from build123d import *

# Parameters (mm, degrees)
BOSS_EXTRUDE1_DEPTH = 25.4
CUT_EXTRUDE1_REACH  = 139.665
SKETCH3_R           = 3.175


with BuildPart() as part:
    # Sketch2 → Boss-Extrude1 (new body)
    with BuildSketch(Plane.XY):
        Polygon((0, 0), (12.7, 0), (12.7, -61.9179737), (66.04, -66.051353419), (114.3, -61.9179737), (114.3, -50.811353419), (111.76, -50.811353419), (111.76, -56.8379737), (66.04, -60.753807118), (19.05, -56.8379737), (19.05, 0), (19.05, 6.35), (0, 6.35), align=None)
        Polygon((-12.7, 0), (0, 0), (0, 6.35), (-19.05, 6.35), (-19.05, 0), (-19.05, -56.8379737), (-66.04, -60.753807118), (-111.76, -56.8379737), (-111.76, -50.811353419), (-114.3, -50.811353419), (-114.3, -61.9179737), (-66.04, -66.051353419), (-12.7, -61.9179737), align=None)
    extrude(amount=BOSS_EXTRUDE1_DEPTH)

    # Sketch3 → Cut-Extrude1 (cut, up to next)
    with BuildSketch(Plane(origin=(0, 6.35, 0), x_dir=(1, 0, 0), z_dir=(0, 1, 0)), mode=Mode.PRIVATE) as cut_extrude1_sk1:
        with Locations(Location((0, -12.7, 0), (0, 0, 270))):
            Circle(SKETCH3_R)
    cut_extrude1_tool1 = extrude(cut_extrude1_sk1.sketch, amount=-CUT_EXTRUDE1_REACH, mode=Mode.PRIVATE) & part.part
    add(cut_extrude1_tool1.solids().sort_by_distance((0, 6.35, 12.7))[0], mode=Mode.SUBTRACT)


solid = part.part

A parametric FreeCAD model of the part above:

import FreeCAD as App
import Part
import Sketcher
from FreeCAD import Vector
Q = App.Units.Quantity

doc = App.newDocument("Part")
body = doc.addObject("PartDesign::Body", "Body")

sketch1 = body.newObject("Sketcher::SketchObject", "Sketch")
sketch1.AttachmentSupport = (doc.getObject("XY_Plane"), [""])
sketch1.MapMode = "FlatFace"
sketch1.addGeometry(Part.LineSegment(Vector(12.7, 0, 0), Vector(12.7, -61.917974, 0)), False)
sketch1.addGeometry(Part.LineSegment(Vector(12.7, -61.917974, 0), Vector(66.04, -66.051353, 0)), False)
sketch1.addGeometry(Part.LineSegment(Vector(66.04, -66.051353, 0), Vector(114.3, -61.917974, 0)), False)
sketch1.addGeometry(Part.LineSegment(Vector(114.3, -61.917974, 0), Vector(114.3, -50.811353, 0)), False)
sketch1.addGeometry(Part.LineSegment(Vector(114.3, -50.811353, 0), Vector(111.76, -50.811353, 0)), False)
sketch1.addGeometry(Part.LineSegment(Vector(111.76, -50.811353, 0), Vector(111.76, -56.837974, 0)), False)
sketch1.addGeometry(Part.LineSegment(Vector(111.76, -56.837974, 0), Vector(66.04, -60.753807, 0)), False)
sketch1.addGeometry(Part.LineSegment(Vector(66.04, -60.753807, 0), Vector(19.05, -56.837974, 0)), False)
sketch1.addGeometry(Part.LineSegment(Vector(19.05, -56.837974, 0), Vector(19.05, 6.35, 0)), False)
sketch1.addGeometry(Part.LineSegment(Vector(19.05, 6.35, 0), Vector(-19.05, 6.35, 0)), False)
sketch1.addGeometry(Part.LineSegment(Vector(-19.05, 6.35, 0), Vector(-19.05, -56.837974, 0)), False)
sketch1.addGeometry(Part.LineSegment(Vector(-19.05, -56.837974, 0), Vector(-66.04, -60.753807, 0)), False)
sketch1.addGeometry(Part.LineSegment(Vector(-66.04, -60.753807, 0), Vector(-111.76, -56.837974, 0)), False)
sketch1.addGeometry(Part.LineSegment(Vector(-111.76, -56.837974, 0), Vector(-111.76, -50.811353, 0)), False)
sketch1.addGeometry(Part.LineSegment(Vector(-111.76, -50.811353, 0), Vector(-114.3, -50.811353, 0)), False)
sketch1.addGeometry(Part.LineSegment(Vector(-114.3, -50.811353, 0), Vector(-114.3, -61.917974, 0)), False)
sketch1.addGeometry(Part.LineSegment(Vector(-114.3, -61.917974, 0), Vector(-66.04, -66.051353, 0)), False)
sketch1.addGeometry(Part.LineSegment(Vector(-66.04, -66.051353, 0), Vector(-12.7, -61.917974, 0)), False)
sketch1.addGeometry(Part.LineSegment(Vector(-12.7, -61.917974, 0), Vector(-12.7, 0, 0)), False)
sketch1.addGeometry(Part.LineSegment(Vector(-12.7, 0, 0), Vector(12.7, 0, 0)), False)
sketch1.addConstraint(Sketcher.Constraint("Coincident", 0, 2, 1, 1))
sketch1.addConstraint(Sketcher.Constraint("Coincident", 1, 2, 2, 1))
sketch1.addConstraint(Sketcher.Constraint("Coincident", 2, 2, 3, 1))
sketch1.addConstraint(Sketcher.Constraint("Coincident", 3, 2, 4, 1))
sketch1.addConstraint(Sketcher.Constraint("Coincident", 4, 2, 5, 1))
sketch1.addConstraint(Sketcher.Constraint("Coincident", 5, 2, 6, 1))
sketch1.addConstraint(Sketcher.Constraint("Coincident", 6, 2, 7, 1))
sketch1.addConstraint(Sketcher.Constraint("Coincident", 7, 2, 8, 1))
sketch1.addConstraint(Sketcher.Constraint("Coincident", 8, 2, 9, 1))
sketch1.addConstraint(Sketcher.Constraint("Coincident", 9, 2, 10, 1))
sketch1.addConstraint(Sketcher.Constraint("Coincident", 10, 2, 11, 1))
sketch1.addConstraint(Sketcher.Constraint("Coincident", 11, 2, 12, 1))
sketch1.addConstraint(Sketcher.Constraint("Coincident", 12, 2, 13, 1))
sketch1.addConstraint(Sketcher.Constraint("Coincident", 13, 2, 14, 1))
sketch1.addConstraint(Sketcher.Constraint("Coincident", 14, 2, 15, 1))
sketch1.addConstraint(Sketcher.Constraint("Coincident", 15, 2, 16, 1))
sketch1.addConstraint(Sketcher.Constraint("Coincident", 16, 2, 17, 1))
sketch1.addConstraint(Sketcher.Constraint("Coincident", 17, 2, 18, 1))
sketch1.addConstraint(Sketcher.Constraint("Coincident", 18, 2, 19, 1))
sketch1.addConstraint(Sketcher.Constraint("Coincident", 19, 2, 0, 1))
sketch1.addConstraint(Sketcher.Constraint("Vertical", 0))
sketch1.addConstraint(Sketcher.Constraint("Vertical", 3))
sketch1.addConstraint(Sketcher.Constraint("Horizontal", 4))
sketch1.addConstraint(Sketcher.Constraint("Vertical", 5))
sketch1.addConstraint(Sketcher.Constraint("Vertical", 8))
sketch1.addConstraint(Sketcher.Constraint("Horizontal", 9))
sketch1.addConstraint(Sketcher.Constraint("Vertical", 10))
sketch1.addConstraint(Sketcher.Constraint("Vertical", 13))
sketch1.addConstraint(Sketcher.Constraint("Horizontal", 14))
sketch1.addConstraint(Sketcher.Constraint("Vertical", 15))
sketch1.addConstraint(Sketcher.Constraint("Vertical", 18))
sketch1.addConstraint(Sketcher.Constraint("Horizontal", 19))
sketch1.addConstraint(Sketcher.Constraint("Symmetric", 18, 2, 19, 2, -1, 1))
sketch1.addConstraint(Sketcher.Constraint("Symmetric", 7, 2, 10, 2, -2))
sketch1.addConstraint(Sketcher.Constraint("Symmetric", 6, 2, 11, 2, -2))
sketch1.addConstraint(Sketcher.Constraint("Symmetric", 5, 2, 12, 2, -2))
sketch1.addConstraint(Sketcher.Constraint("Symmetric", 3, 2, 14, 2, -2))
sketch1.addConstraint(Sketcher.Constraint("Symmetric", 1, 2, 16, 2, -2))
sketch1.addConstraint(Sketcher.Constraint("Parallel", 2, 6))
sketch1.addConstraint(Sketcher.Constraint("Parallel", 12, 16))
sketch1.addConstraint(Sketcher.Constraint("Horizontal", 0, 2, 2, 2))
sketch1.addConstraint(Sketcher.Constraint("Horizontal", 5, 2, 7, 2))
sketch1.addConstraint(Sketcher.Constraint("Horizontal", 15, 2, 17, 2))
sketch1.addConstraint(Sketcher.Constraint("Vertical", 1, 2, 6, 2))
sketch1.addConstraint(Sketcher.Constraint("DistanceX", 19, 1, 19, 2, Q("1 in")))
sketch1.addConstraint(Sketcher.Constraint("DistanceX", 4, 2, 4, 1, Q("0.1 in")))
sketch1.addConstraint(Sketcher.Constraint("DistanceX", 9, 2, 9, 1, Q("1.5 in")))
sketch1.addConstraint(Sketcher.Constraint("DistanceX", 0, 2, 2, 2, Q("4 in")))
sketch1.addConstraint(Sketcher.Constraint("DistanceX", -1, 1, 1, 2, Q("2.6 in")))
sketch1.addConstraint(Sketcher.Constraint("DistanceY", 1, 2, 3, 2, Q("0.6 in")))
sketch1.addConstraint(Sketcher.Constraint("DistanceY", 2, 2, 5, 2, Q("0.2 in")))
sketch1.addConstraint(Sketcher.Constraint("DistanceY", -1, 1, 8, 2, Q("0.25 in")))
sketch1.addConstraint(Sketcher.Constraint("DistanceY", 3, 1, 3, 2, Q("11.10662 mm")))
sketch1.addConstraint(Sketcher.Constraint("DistanceY", 0, 2, 0, 1, Q("61.917974 mm")))
pad1 = body.newObject("PartDesign::Pad", "Pad")
pad1.Profile = sketch1
pad1.Length = Q("1 in")

sketch2 = body.newObject("Sketcher::SketchObject", "Sketch001")
sketch2.AttachmentSupport = (doc.getObject("XZ_Plane"), [""])
sketch2.MapMode = "FlatFace"
sketch2.AttachmentOffset = App.Placement(Vector(0, 0, -0.25 * 25.4), App.Rotation())
sketch2.addGeometry(Part.Circle(Vector(0, 12.7, 0), Vector(0, 0, 1), 3.175), False)
sketch2.addConstraint(Sketcher.Constraint("PointOnObject", 0, 3, -2))
sketch2.addConstraint(Sketcher.Constraint("Diameter", 0, Q("0.25 in")))
sketch2.addConstraint(Sketcher.Constraint("DistanceY", -1, 1, 0, 3, Q("0.5 in")))
pocket1 = body.newObject("PartDesign::Pocket", "Pocket")
pocket1.Profile = sketch2
pocket1.Type = "UpToFirst"
pocket1.Reversed = True

doc.recompute()
